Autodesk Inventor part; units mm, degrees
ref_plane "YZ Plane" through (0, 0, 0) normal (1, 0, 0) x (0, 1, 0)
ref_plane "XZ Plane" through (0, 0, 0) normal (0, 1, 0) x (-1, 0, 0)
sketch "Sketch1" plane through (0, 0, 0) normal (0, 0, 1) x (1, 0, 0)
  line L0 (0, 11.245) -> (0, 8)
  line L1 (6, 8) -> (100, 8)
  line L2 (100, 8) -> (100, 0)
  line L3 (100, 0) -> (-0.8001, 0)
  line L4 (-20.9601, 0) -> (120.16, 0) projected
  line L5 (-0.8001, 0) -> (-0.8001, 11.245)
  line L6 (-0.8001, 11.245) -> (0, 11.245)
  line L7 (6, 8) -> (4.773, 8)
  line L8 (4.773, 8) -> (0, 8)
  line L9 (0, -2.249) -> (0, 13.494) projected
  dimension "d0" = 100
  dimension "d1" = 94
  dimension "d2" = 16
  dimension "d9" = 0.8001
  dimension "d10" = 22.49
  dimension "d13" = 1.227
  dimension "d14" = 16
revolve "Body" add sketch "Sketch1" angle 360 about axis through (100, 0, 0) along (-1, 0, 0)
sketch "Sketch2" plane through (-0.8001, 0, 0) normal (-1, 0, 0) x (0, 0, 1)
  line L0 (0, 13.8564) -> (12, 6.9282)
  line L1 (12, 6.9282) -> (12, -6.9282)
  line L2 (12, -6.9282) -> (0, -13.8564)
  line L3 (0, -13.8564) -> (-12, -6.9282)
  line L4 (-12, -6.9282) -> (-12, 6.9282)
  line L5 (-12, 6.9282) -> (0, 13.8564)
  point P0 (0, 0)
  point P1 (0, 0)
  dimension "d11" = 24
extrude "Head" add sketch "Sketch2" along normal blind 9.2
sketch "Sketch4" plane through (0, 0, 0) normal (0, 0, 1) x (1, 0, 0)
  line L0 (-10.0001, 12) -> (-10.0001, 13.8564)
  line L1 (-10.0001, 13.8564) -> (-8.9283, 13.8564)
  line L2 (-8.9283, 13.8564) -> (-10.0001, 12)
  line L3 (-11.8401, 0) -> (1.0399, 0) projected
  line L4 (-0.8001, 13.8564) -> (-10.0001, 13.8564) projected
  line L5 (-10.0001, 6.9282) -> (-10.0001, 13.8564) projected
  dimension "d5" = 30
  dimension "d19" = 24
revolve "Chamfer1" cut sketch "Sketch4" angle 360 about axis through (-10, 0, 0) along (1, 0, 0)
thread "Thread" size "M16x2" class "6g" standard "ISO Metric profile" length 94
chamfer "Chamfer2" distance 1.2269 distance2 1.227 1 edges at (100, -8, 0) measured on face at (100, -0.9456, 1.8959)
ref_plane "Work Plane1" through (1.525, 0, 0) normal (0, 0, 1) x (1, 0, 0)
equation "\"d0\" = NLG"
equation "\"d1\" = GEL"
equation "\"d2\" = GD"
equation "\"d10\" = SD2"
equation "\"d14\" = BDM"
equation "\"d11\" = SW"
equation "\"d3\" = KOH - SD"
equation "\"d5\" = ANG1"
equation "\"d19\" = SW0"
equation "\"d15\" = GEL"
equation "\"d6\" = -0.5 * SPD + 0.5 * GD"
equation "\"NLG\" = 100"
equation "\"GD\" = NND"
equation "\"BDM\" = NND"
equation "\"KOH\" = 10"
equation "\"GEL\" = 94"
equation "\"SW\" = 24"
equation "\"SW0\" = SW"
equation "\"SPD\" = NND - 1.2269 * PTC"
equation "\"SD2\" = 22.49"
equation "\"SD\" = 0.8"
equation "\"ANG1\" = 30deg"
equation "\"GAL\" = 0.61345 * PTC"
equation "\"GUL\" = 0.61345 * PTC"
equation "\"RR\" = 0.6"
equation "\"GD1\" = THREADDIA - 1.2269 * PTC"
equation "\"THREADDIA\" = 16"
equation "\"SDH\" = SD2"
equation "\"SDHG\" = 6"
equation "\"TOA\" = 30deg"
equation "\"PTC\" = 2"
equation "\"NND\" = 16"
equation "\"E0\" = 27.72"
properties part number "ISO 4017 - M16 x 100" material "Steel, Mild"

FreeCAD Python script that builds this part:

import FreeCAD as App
import Part
import Sketcher

V = App.Vector
Q = App.Units.Quantity


def edges_at(feature, points):
    """Names of the edges that pass closest to the given points."""
    edges = feature.Shape.Edges
    near = lambda p: min(range(len(edges)), key=lambda i: edges[i].distToShape(Part.Vertex(*p))[0])
    return sorted({f"Edge{near(p) + 1}" for p in points})


def add_polygon(sketch, points):
    """Adds a closed chain of lines whose ends are joined by coincident constraints."""
    first, n = sketch.GeometryCount, len(points)
    for a, b in zip(points, points[1:] + points[:1]):
        sketch.addGeometry(Part.LineSegment(App.Vector(*a, 0), App.Vector(*b, 0)), False)
    for i in range(n):
        sketch.addConstraint(Sketcher.Constraint("Coincident", first + i, 2, first + (i + 1) % n, 1))

doc = App.newDocument("Part")
params = doc.addObject("Spreadsheet::Sheet", "Params")
for row, (alias, value) in enumerate([
    ("sketch1_width", "100 mm"),
    ("sketch1_width2", "0.8 mm"),
    ("sketch1_height", "8 mm"),
    ("revolution_angle", "360 deg"),
    ("pad1_length", "9.2 mm"),
    ("groove_angle", "360 deg"),
    ("chamfer_size", "1.2269 mm"),
    ("chamfer_size2", "1.227 mm"),
], start=1):
    params.set(f"A{row}", alias)
    params.set(f"B{row}", "=" + value)
    params.setAlias(f"B{row}", alias)

body = doc.addObject("PartDesign::Body", "Body")

# Sketch on XY plane
sketch1 = body.newObject("Sketcher::SketchObject", "Sketch")
sketch1.AttachmentSupport = (doc.getObject("XY_Plane"), [""])
sketch1.MapMode = "FlatFace"
add_polygon(sketch1, [(0, 8), (0, 11.245), (-0.8001, 11.245), (-0.8001, 0), (100, 0), (100, 8)])  # lines 0-5
sketch1.addConstraint(Sketcher.Constraint("Vertical", 0))
sketch1.addConstraint(Sketcher.Constraint("Horizontal", 1))
sketch1.addConstraint(Sketcher.Constraint("Vertical", 2))
sketch1.addConstraint(Sketcher.Constraint("Horizontal", 3))
sketch1.addConstraint(Sketcher.Constraint("Vertical", 4))
sketch1.addConstraint(Sketcher.Constraint("Horizontal", 5))
sketch1.addConstraint(Sketcher.Constraint("PointOnObject", 0, 2, -2))
sketch1.addConstraint(Sketcher.Constraint("PointOnObject", 2, 2, -1))
sketch1.addConstraint(Sketcher.Constraint("DistanceX", 5, 2, 5, 1, Q("100 mm")))
sketch1.addConstraint(Sketcher.Constraint("DistanceX", 1, 2, 1, 1, Q("0.8 mm")))
sketch1.addConstraint(Sketcher.Constraint("DistanceY", 4, 1, 4, 2, Q("8 mm")))
sketch1.addConstraint(Sketcher.Constraint("DistanceY", 0, 1, 0, 2, Q("3.245 mm")))
sketch1.setExpression("Constraints[14]", "Params.sketch1_width")
sketch1.setExpression("Constraints[15]", "Params.sketch1_width2")
sketch1.setExpression("Constraints[16]", "Params.sketch1_height")
revolution = body.newObject("PartDesign::Revolution", "Revolution")
revolution.Profile = sketch1
revolution.ReferenceAxis = (sketch1, ["H_Axis"])
revolution.setExpression("Angle", "Params.revolution_angle")

# Sketch on YZ plane
sketch2 = body.newObject("Sketcher::SketchObject", "Sketch001")
sketch2.AttachmentSupport = (doc.getObject("YZ_Plane"), [""])
sketch2.MapMode = "FlatFace"
sketch2.AttachmentOffset = App.Placement(V(0, 0, -0.8001), App.Rotation())
add_polygon(sketch2, [(6.9282, 12), (13.8564, 0), (6.9282, -12), (-6.9282, -12), (-13.8564, 0), (-6.9282, 12)])  # lines 0-5
sketch2.addConstraint(Sketcher.Constraint("Horizontal", 2))
sketch2.addConstraint(Sketcher.Constraint("Horizontal", 5))
sketch2.addConstraint(Sketcher.Constraint("Symmetric", 0, 2, 3, 2, -1, 1))
sketch2.addConstraint(Sketcher.Constraint("Symmetric", 1, 2, 4, 2, -1, 1))
sketch2.addConstraint(Sketcher.Constraint("PointOnObject", 0, 2, -1))
sketch2.addConstraint(Sketcher.Constraint("Parallel", 0, 3))
sketch2.addConstraint(Sketcher.Constraint("Vertical", 2, 2, 4, 2))
sketch2.addConstraint(Sketcher.Constraint("DistanceY", 2, 2, 4, 2, Q("24 mm")))
sketch2.addConstraint(Sketcher.Constraint("Angle", 0, Q("-60 deg")))
sketch2.addConstraint(Sketcher.Constraint("DistanceX", 2, 2, 2, 1, Q("13.8564 mm")))
pad1 = body.newObject("PartDesign::Pad", "Pad")
pad1.Profile = sketch2
pad1.setExpression("Length", "Params.pad1_length")
pad1.Reversed = True

# Sketch on XY plane
sketch3 = body.newObject("Sketcher::SketchObject", "Sketch002")
sketch3.AttachmentSupport = (doc.getObject("XY_Plane"), [""])
sketch3.MapMode = "FlatFace"
add_polygon(sketch3, [(-10.0001, 13.8564), (-10.0001, 12), (-8.9283, 13.8564)])  # lines 0-2
sketch3.addConstraint(Sketcher.Constraint("Vertical", 0))
sketch3.addConstraint(Sketcher.Constraint("Horizontal", 2))
sketch3.addConstraint(Sketcher.Constraint("Angle", 1, Q("59.9998 deg")))
sketch3.addConstraint(Sketcher.Constraint("DistanceX", 0, 2, -1, 1, Q("10 mm")))
sketch3.addConstraint(Sketcher.Constraint("DistanceY", -1, 1, 0, 2, Q("12 mm")))
sketch3.addConstraint(Sketcher.Constraint("DistanceX", 2, 2, 2, 1, Q("1.0718 mm")))
groove = body.newObject("PartDesign::Groove", "Groove")
groove.Profile = sketch3
groove.ReferenceAxis = (sketch3, ["H_Axis"])
groove.setExpression("Angle", "Params.groove_angle")
doc.recompute()

chamfer = body.newObject("PartDesign::Chamfer", "Chamfer")
chamfer.Base = (groove, edges_at(groove, [(100, -8, 0)]))
chamfer.ChamferType = "Two distances"
chamfer.setExpression("Size", "Params.chamfer_size")
chamfer.setExpression("Size2", "Params.chamfer_size2")

doc.recompute()
